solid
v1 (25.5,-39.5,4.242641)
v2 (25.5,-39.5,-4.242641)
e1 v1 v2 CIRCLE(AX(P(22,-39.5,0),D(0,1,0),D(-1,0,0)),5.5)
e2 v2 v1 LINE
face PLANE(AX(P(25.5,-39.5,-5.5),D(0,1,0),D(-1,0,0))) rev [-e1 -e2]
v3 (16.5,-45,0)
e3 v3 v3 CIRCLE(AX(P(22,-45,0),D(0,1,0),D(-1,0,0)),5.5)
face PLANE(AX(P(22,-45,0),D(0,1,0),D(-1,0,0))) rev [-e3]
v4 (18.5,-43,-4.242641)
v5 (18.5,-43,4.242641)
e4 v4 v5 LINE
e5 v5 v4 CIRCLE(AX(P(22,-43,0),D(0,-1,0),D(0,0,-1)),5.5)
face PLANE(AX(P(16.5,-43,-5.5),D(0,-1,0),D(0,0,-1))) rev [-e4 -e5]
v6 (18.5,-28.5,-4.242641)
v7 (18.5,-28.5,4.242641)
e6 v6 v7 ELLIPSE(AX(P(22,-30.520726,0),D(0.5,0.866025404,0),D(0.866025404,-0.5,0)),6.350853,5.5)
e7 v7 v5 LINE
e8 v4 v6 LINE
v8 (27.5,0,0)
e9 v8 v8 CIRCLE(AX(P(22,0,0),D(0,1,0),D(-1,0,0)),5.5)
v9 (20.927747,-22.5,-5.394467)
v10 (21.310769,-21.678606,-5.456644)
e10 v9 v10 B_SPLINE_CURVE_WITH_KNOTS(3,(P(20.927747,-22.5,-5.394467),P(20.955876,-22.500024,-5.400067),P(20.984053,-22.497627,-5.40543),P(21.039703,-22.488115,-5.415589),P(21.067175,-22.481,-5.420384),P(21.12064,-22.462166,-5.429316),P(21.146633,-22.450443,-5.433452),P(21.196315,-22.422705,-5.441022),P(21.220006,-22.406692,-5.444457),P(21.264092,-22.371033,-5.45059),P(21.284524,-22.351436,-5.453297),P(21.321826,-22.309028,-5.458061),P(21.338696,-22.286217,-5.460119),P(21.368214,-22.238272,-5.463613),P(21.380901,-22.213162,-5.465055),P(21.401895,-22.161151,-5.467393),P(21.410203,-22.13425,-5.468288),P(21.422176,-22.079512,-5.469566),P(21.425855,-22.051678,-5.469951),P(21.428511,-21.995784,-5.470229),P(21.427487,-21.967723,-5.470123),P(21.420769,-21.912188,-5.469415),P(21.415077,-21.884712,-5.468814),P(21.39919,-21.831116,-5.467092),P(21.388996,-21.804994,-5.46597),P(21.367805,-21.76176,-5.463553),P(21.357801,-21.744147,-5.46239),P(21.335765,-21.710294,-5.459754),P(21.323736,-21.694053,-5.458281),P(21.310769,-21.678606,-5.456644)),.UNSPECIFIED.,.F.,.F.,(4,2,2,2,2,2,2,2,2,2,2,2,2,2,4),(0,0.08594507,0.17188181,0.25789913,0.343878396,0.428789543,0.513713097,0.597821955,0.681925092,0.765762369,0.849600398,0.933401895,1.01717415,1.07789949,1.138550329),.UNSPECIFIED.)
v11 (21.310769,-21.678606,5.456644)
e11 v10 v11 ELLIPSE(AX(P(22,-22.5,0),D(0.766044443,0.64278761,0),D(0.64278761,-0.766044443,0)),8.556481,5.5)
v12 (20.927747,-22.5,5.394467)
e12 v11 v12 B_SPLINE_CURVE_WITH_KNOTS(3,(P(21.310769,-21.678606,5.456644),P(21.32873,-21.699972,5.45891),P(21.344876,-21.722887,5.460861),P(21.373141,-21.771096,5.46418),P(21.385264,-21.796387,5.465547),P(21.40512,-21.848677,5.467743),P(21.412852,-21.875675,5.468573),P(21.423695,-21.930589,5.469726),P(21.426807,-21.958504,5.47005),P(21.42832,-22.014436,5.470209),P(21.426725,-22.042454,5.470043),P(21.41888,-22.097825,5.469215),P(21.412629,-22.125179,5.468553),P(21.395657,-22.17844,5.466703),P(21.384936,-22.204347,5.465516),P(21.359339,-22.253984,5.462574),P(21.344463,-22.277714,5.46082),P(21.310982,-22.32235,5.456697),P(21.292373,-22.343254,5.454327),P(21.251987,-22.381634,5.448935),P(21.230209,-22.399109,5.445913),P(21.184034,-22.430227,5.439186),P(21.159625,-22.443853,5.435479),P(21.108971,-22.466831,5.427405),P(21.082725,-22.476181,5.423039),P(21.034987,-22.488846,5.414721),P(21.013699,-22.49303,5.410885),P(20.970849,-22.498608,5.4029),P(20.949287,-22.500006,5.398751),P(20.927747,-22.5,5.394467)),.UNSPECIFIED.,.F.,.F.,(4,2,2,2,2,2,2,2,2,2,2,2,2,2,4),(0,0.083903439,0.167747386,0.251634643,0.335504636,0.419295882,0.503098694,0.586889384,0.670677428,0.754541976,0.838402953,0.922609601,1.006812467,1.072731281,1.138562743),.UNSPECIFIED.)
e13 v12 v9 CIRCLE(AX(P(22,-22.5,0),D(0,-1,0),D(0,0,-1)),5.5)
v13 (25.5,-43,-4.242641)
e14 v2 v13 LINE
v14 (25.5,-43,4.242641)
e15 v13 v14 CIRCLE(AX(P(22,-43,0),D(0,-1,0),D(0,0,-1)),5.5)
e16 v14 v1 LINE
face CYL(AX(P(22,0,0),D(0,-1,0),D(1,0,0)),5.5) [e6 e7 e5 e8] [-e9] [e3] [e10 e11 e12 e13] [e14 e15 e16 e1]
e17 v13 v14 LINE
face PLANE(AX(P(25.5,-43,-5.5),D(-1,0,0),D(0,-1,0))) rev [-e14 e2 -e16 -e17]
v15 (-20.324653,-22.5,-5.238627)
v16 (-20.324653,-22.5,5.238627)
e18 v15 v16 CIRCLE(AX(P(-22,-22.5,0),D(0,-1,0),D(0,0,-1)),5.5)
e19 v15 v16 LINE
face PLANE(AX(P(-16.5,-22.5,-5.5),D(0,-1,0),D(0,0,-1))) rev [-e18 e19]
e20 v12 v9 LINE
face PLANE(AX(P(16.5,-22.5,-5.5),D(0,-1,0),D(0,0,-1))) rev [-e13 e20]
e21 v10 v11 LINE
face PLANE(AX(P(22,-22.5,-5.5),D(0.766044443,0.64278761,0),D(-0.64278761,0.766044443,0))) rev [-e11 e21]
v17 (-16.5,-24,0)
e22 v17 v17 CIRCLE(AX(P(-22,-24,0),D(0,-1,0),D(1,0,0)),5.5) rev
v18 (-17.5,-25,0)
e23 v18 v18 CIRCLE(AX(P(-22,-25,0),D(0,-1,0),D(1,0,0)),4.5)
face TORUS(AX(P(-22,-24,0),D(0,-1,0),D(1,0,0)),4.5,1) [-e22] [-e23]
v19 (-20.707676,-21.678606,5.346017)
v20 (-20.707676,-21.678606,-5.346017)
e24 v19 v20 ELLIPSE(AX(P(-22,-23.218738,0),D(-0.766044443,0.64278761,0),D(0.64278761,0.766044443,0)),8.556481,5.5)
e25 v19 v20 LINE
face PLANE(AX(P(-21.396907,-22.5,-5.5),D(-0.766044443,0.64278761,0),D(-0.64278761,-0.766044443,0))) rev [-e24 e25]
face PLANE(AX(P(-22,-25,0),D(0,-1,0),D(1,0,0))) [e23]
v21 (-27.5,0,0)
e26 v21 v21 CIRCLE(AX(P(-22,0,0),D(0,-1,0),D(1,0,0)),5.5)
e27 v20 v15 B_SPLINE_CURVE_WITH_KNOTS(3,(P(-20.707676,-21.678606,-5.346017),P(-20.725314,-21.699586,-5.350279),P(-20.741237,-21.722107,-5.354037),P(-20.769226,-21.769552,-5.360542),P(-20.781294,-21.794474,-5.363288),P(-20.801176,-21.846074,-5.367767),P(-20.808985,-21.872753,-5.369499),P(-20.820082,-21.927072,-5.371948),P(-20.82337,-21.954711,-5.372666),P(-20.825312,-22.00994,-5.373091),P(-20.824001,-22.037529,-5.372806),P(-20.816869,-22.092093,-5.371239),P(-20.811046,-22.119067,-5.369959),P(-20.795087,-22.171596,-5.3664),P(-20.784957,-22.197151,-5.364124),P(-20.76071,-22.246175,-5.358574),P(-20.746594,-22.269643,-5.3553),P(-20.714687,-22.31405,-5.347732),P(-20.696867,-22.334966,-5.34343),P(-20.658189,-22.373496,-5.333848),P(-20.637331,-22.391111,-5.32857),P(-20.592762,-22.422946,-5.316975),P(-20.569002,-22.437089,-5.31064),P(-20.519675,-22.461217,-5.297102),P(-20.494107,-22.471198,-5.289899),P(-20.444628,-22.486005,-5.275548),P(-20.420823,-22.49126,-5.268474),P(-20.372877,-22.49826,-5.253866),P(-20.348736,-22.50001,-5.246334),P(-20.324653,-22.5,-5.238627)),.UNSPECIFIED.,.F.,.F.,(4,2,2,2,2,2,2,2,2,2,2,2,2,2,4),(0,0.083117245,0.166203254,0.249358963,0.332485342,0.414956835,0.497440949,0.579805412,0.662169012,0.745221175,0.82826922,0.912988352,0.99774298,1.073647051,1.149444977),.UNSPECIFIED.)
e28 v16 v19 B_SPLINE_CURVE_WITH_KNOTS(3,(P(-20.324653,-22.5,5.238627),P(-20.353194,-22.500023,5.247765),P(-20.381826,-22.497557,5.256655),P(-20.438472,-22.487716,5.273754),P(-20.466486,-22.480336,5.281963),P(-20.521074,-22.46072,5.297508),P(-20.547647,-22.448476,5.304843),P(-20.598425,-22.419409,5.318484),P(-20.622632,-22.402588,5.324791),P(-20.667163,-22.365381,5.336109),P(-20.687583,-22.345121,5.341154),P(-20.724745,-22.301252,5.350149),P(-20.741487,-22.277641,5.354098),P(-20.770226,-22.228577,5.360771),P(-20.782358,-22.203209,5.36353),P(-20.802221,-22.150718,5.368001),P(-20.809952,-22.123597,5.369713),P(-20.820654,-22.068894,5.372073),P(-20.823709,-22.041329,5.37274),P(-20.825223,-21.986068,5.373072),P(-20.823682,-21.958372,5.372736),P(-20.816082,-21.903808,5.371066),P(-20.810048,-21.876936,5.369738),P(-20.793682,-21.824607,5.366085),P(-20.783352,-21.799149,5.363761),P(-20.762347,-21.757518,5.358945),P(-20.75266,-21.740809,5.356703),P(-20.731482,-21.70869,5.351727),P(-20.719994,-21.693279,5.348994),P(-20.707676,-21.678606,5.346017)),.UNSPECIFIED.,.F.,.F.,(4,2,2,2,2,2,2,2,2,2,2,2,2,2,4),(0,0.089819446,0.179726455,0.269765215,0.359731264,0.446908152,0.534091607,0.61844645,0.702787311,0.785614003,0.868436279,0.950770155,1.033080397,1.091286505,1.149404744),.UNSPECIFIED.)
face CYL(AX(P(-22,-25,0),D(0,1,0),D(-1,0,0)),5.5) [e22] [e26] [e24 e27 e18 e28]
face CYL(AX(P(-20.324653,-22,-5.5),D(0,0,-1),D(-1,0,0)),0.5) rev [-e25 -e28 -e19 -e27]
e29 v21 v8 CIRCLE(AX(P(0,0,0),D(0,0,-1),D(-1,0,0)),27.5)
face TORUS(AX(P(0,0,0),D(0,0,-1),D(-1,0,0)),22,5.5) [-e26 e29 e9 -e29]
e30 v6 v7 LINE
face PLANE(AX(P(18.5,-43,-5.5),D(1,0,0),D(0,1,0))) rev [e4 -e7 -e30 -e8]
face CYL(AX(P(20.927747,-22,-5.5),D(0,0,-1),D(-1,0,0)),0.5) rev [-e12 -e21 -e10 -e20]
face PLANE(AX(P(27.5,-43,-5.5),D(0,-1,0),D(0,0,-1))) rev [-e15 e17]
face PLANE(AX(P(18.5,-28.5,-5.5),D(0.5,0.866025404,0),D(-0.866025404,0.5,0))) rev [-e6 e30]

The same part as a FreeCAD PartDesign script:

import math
import FreeCAD as App
import Part
import Sketcher
from FreeCAD import Vector
Q = App.Units.Quantity


def edges_at(feature, points):
    """Names of the edges that pass closest to the given points."""
    edges = feature.Shape.Edges
    near = lambda p: min(range(len(edges)), key=lambda i: edges[i].distToShape(Part.Vertex(*p))[0])
    return sorted({f"Edge{near(p) + 1}" for p in points})

doc = App.newDocument("Part")
params = doc.addObject("Spreadsheet::Sheet", "Params")
for row, (alias, value) in enumerate([
    ("sketch1_diameter", "11 mm"),
    ("sketch2_radius", "22 mm"),
    ("sketch2_height", "25 mm"),
    ("sketch2_height2", "45 mm"),
    ("fillet_radius", "1 mm"),
    ("fillet2_radius", "0.5 mm"),
    ("sketch4_width", "2 mm"),
    ("sketch4_height", "3.5 mm"),
    ("sketch5_width", "2 mm"),
    ("sketch5_height", "11 mm"),
    ("sketch6_width", "5.5 mm"),
    ("fillet3_radius", "0.5 mm"),
], start=1):
    params.set(f"A{row}", alias)
    params.set(f"B{row}", "=" + value)
    params.setAlias(f"B{row}", alias)

body = doc.addObject("PartDesign::Body", "Body")

sketch1 = doc.addObject("Sketcher::SketchObject", "Sketch")
body.addObject(sketch1)
sketch1.AttachmentSupport = (doc.XZ_Plane, [""])
sketch1.MapMode = "FlatFace"
sketch1.AttachmentOffset = App.Placement(Vector(0, 0, 25), App.Rotation())
sketch1.addGeometry(Part.Circle(Vector(-22, 0, 0), Vector(0, 0, 1), 5.5), False)
sketch1.addConstraint([
    Sketcher.Constraint("PointOnObject", 0, 3, -1),
    Sketcher.Constraint("Diameter", 0, Q("11 mm")),
    Sketcher.Constraint("DistanceX", 0, 3, -1, 1, Q("22 mm")),
])
sketch1.setExpression("Constraints[1]", "Params.sketch1_diameter")

sketch2 = doc.addObject("Sketcher::SketchObject", "Sketch001")
body.addObject(sketch2)
sketch2.AttachmentSupport = (doc.XY_Plane, [""])
sketch2.MapMode = "FlatFace"
sketch2.addGeometry([
    Part.LineSegment(Vector(-22, -25, 0), Vector(-22, 0, 0)),
    Part.ArcOfCircle(Part.Circle(Vector(0, 0, 0), Vector(0, 0, 1), 22), math.radians(0), math.radians(180)),
    Part.LineSegment(Vector(22, 0, 0), Vector(22, -45, 0)),
], False)
sketch2.addConstraint([
    Sketcher.Constraint("Tangent", 0, 2, 1, 2),
    Sketcher.Constraint("Tangent", 1, 1, 2, 1),
    Sketcher.Constraint("Vertical", 0),
    Sketcher.Constraint("Vertical", 2),
    Sketcher.Constraint("Coincident", 1, 3, -1, 1),
    Sketcher.Constraint("Radius", 1, Q("22 mm")),
    Sketcher.Constraint("DistanceY", 0, 1, 0, 2, Q("25 mm")),
    Sketcher.Constraint("DistanceY", 2, 2, 2, 1, Q("45 mm")),
])
sketch2.setExpression("Constraints[5]", "Params.sketch2_radius")
sketch2.setExpression("Constraints[6]", "Params.sketch2_height")
sketch2.setExpression("Constraints[7]", "Params.sketch2_height2")
doc.recompute()

additivepipe = doc.addObject("PartDesign::AdditivePipe", "AdditivePipe")
body.addObject(additivepipe)
additivepipe.Profile = sketch1
additivepipe.Spine = (sketch2, ["Edge1", "Edge2", "Edge3"])
doc.recompute()

fillet = doc.addObject("PartDesign::Fillet", "Fillet")
body.addObject(fillet)
fillet.Base = (additivepipe, edges_at(additivepipe, [(-27.5, -25, 0)]))
fillet.setExpression("Radius", "Params.fillet_radius")

sketch3 = doc.addObject("Sketcher::SketchObject", "Sketch002")
body.addObject(sketch3)
sketch3.AttachmentSupport = (doc.XY_Plane, [""])
sketch3.MapMode = "FlatFace"
sketch3.addGeometry([
    Part.LineSegment(Vector(-21.396907, -22.5, 0), Vector(-16.5, -22.5, 0)),
    Part.LineSegment(Vector(-16.5, -22.5, 0), Vector(-16.5, -16.664094, 0)),
    Part.LineSegment(Vector(-16.5, -16.664094, 0), Vector(-21.396907, -22.5, 0)),
], False)
sketch3.addConstraint([
    Sketcher.Constraint("Coincident", 0, 2, 1, 1),
    Sketcher.Constraint("Coincident", 1, 2, 2, 1),
    Sketcher.Constraint("Coincident", 2, 2, 0, 1),
    Sketcher.Constraint("Horizontal", 0),
    Sketcher.Constraint("Vertical", 1),
    Sketcher.Constraint("Angle", 2, Q("-130 deg")),
    Sketcher.Constraint("DistanceX", 0, 2, -1, 1, Q("16.5 mm")),
    Sketcher.Constraint("DistanceY", 0, 2, -1, 1, Q("22.5 mm")),
    Sketcher.Constraint("DistanceX", 0, 1, 0, 2, Q("4.896907 mm")),
])
pocket1 = doc.addObject("PartDesign::Pocket", "Pocket")
body.addObject(pocket1)
pocket1.Profile = sketch3
pocket1.Type = "ThroughAll"
pocket1.Midplane = True
doc.recompute()

fillet2 = doc.addObject("PartDesign::Fillet", "Fillet001")
body.addObject(fillet2)
fillet2.Base = (pocket1, edges_at(pocket1, [(-21.397, -22.5, 0)]))
fillet2.setExpression("Radius", "Params.fillet2_radius")

sketch4 = doc.addObject("Sketcher::SketchObject", "Sketch003")
body.addObject(sketch4)
sketch4.AttachmentSupport = (doc.XY_Plane, [""])
sketch4.MapMode = "FlatFace"
sketch4.addGeometry([
    Part.LineSegment(Vector(25.5, -39.5, 0), Vector(25.5, -43, 0)),
    Part.LineSegment(Vector(25.5, -43, 0), Vector(27.5, -43, 0)),
    Part.LineSegment(Vector(27.5, -43, 0), Vector(27.5, -39.5, 0)),
    Part.LineSegment(Vector(27.5, -39.5, 0), Vector(25.5, -39.5, 0)),
    Part.LineSegment(Vector(16.5, -39.5, 0), Vector(16.5, -43, 0)),
    Part.LineSegment(Vector(16.5, -43, 0), Vector(18.5, -43, 0)),
    Part.LineSegment(Vector(18.5, -43, 0), Vector(18.5, -39.5, 0)),
    Part.LineSegment(Vector(18.5, -39.5, 0), Vector(16.5, -39.5, 0)),
], False)
sketch4.addConstraint([
    Sketcher.Constraint("Coincident", 0, 2, 1, 1),
    Sketcher.Constraint("Coincident", 1, 2, 2, 1),
    Sketcher.Constraint("Coincident", 2, 2, 3, 1),
    Sketcher.Constraint("Coincident", 3, 2, 0, 1),
    Sketcher.Constraint("Coincident", 4, 2, 5, 1),
    Sketcher.Constraint("Coincident", 5, 2, 6, 1),
    Sketcher.Constraint("Coincident", 6, 2, 7, 1),
    Sketcher.Constraint("Coincident", 7, 2, 4, 1),
    Sketcher.Constraint("Vertical", 0),
    Sketcher.Constraint("Horizontal", 1),
    Sketcher.Constraint("Vertical", 2),
    Sketcher.Constraint("Horizontal", 3),
    Sketcher.Constraint("Vertical", 4),
    Sketcher.Constraint("Horizontal", 5),
    Sketcher.Constraint("Vertical", 6),
    Sketcher.Constraint("Horizontal", 7),
    Sketcher.Constraint("Horizontal", 1, 2, 4, 2),
    Sketcher.Constraint("Horizontal", 3, 2, 6, 2),
    Sketcher.Constraint("Equal", 3, 5),
    Sketcher.Constraint("DistanceX", 1, 1, 1, 2, Q("2 mm")),
    Sketcher.Constraint("DistanceY", 0, 2, 0, 1, Q("3.5 mm")),
    Sketcher.Constraint("DistanceY", 0, 2, -1, 1, Q("43 mm")),
    Sketcher.Constraint("DistanceX", 4, 2, 0, 2, Q("9 mm")),
    Sketcher.Constraint("DistanceX", -1, 1, 0, 2, Q("25.5 mm")),
])
sketch4.setExpression("Constraints[19]", "Params.sketch4_width")
sketch4.setExpression("Constraints[20]", "Params.sketch4_height")
pocket2 = doc.addObject("PartDesign::Pocket", "Pocket001")
body.addObject(pocket2)
pocket2.Profile = sketch4
pocket2.Type = "ThroughAll"
pocket2.Midplane = True

sketch5 = doc.addObject("Sketcher::SketchObject", "Sketch004")
body.addObject(sketch5)
sketch5.AttachmentSupport = (doc.XY_Plane, [""])
sketch5.MapMode = "FlatFace"
sketch5.addGeometry([
    Part.LineSegment(Vector(18.5, -39.5, 0), Vector(18.5, -28.5, 0)),
    Part.LineSegment(Vector(18.5, -28.5, 0), Vector(16.5, -27.345299, 0)),
    Part.LineSegment(Vector(16.5, -27.345299, 0), Vector(16.5, -39.5, 0)),
    Part.LineSegment(Vector(16.5, -39.5, 0), Vector(18.5, -39.5, 0)),
], False)
sketch5.addConstraint([
    Sketcher.Constraint("Coincident", 0, 2, 1, 1),
    Sketcher.Constraint("Coincident", 1, 2, 2, 1),
    Sketcher.Constraint("Coincident", 2, 2, 3, 1),
    Sketcher.Constraint("Coincident", 3, 2, 0, 1),
    Sketcher.Constraint("Vertical", 0),
    Sketcher.Constraint("Vertical", 2),
    Sketcher.Constraint("Horizontal", 3),
    Sketcher.Constraint("DistanceX", 3, 1, 3, 2, Q("2 mm")),
    Sketcher.Constraint("DistanceY", 0, 1, 0, 2, Q("11 mm")),
    Sketcher.Constraint("Angle", 1, Q("150 deg")),
    Sketcher.Constraint("DistanceX", -1, 1, 0, 2, Q("18.5 mm")),
    Sketcher.Constraint("DistanceY", 0, 2, -1, 1, Q("28.5 mm")),
])
sketch5.setExpression("Constraints[7]", "Params.sketch5_width")
sketch5.setExpression("Constraints[8]", "Params.sketch5_height")
pocket3 = doc.addObject("PartDesign::Pocket", "Pocket002")
body.addObject(pocket3)
pocket3.Profile = sketch5
pocket3.Type = "ThroughAll"
pocket3.Midplane = True

sketch6 = doc.addObject("Sketcher::SketchObject", "Sketch005")
body.addObject(sketch6)
sketch6.AttachmentSupport = (doc.XY_Plane, [""])
sketch6.MapMode = "FlatFace"
sketch6.addGeometry([
    Part.LineSegment(Vector(16.5, -22.5, 0), Vector(22, -22.5, 0)),
    Part.LineSegment(Vector(22, -22.5, 0), Vector(16.5, -15.945355, 0)),
    Part.LineSegment(Vector(16.5, -15.945355, 0), Vector(16.5, -22.5, 0)),
], False)
sketch6.addConstraint([
    Sketcher.Constraint("Coincident", 0, 2, 1, 1),
    Sketcher.Constraint("Coincident", 1, 2, 2, 1),
    Sketcher.Constraint("Coincident", 2, 2, 0, 1),
    Sketcher.Constraint("Horizontal", 0),
    Sketcher.Constraint("Vertical", 2),
    Sketcher.Constraint("Angle", 1, Q("130 deg")),
    Sketcher.Constraint("DistanceX", 0, 1, 0, 2, Q("5.5 mm")),
    Sketcher.Constraint("DistanceX", -1, 1, 0, 2, Q("22 mm")),
    Sketcher.Constraint("DistanceY", 0, 2, -1, 1, Q("22.5 mm")),
])
sketch6.setExpression("Constraints[6]", "Params.sketch6_width")
pocket4 = doc.addObject("PartDesign::Pocket", "Pocket003")
body.addObject(pocket4)
pocket4.Profile = sketch6
pocket4.Type = "ThroughAll"
pocket4.Midplane = True
doc.recompute()

fillet3 = doc.addObject("PartDesign::Fillet", "Fillet002")
body.addObject(fillet3)
fillet3.Base = (pocket4, edges_at(pocket4, [(22, -22.5, 0)]))
fillet3.setExpression("Radius", "Params.fillet3_radius")

doc.recompute()
